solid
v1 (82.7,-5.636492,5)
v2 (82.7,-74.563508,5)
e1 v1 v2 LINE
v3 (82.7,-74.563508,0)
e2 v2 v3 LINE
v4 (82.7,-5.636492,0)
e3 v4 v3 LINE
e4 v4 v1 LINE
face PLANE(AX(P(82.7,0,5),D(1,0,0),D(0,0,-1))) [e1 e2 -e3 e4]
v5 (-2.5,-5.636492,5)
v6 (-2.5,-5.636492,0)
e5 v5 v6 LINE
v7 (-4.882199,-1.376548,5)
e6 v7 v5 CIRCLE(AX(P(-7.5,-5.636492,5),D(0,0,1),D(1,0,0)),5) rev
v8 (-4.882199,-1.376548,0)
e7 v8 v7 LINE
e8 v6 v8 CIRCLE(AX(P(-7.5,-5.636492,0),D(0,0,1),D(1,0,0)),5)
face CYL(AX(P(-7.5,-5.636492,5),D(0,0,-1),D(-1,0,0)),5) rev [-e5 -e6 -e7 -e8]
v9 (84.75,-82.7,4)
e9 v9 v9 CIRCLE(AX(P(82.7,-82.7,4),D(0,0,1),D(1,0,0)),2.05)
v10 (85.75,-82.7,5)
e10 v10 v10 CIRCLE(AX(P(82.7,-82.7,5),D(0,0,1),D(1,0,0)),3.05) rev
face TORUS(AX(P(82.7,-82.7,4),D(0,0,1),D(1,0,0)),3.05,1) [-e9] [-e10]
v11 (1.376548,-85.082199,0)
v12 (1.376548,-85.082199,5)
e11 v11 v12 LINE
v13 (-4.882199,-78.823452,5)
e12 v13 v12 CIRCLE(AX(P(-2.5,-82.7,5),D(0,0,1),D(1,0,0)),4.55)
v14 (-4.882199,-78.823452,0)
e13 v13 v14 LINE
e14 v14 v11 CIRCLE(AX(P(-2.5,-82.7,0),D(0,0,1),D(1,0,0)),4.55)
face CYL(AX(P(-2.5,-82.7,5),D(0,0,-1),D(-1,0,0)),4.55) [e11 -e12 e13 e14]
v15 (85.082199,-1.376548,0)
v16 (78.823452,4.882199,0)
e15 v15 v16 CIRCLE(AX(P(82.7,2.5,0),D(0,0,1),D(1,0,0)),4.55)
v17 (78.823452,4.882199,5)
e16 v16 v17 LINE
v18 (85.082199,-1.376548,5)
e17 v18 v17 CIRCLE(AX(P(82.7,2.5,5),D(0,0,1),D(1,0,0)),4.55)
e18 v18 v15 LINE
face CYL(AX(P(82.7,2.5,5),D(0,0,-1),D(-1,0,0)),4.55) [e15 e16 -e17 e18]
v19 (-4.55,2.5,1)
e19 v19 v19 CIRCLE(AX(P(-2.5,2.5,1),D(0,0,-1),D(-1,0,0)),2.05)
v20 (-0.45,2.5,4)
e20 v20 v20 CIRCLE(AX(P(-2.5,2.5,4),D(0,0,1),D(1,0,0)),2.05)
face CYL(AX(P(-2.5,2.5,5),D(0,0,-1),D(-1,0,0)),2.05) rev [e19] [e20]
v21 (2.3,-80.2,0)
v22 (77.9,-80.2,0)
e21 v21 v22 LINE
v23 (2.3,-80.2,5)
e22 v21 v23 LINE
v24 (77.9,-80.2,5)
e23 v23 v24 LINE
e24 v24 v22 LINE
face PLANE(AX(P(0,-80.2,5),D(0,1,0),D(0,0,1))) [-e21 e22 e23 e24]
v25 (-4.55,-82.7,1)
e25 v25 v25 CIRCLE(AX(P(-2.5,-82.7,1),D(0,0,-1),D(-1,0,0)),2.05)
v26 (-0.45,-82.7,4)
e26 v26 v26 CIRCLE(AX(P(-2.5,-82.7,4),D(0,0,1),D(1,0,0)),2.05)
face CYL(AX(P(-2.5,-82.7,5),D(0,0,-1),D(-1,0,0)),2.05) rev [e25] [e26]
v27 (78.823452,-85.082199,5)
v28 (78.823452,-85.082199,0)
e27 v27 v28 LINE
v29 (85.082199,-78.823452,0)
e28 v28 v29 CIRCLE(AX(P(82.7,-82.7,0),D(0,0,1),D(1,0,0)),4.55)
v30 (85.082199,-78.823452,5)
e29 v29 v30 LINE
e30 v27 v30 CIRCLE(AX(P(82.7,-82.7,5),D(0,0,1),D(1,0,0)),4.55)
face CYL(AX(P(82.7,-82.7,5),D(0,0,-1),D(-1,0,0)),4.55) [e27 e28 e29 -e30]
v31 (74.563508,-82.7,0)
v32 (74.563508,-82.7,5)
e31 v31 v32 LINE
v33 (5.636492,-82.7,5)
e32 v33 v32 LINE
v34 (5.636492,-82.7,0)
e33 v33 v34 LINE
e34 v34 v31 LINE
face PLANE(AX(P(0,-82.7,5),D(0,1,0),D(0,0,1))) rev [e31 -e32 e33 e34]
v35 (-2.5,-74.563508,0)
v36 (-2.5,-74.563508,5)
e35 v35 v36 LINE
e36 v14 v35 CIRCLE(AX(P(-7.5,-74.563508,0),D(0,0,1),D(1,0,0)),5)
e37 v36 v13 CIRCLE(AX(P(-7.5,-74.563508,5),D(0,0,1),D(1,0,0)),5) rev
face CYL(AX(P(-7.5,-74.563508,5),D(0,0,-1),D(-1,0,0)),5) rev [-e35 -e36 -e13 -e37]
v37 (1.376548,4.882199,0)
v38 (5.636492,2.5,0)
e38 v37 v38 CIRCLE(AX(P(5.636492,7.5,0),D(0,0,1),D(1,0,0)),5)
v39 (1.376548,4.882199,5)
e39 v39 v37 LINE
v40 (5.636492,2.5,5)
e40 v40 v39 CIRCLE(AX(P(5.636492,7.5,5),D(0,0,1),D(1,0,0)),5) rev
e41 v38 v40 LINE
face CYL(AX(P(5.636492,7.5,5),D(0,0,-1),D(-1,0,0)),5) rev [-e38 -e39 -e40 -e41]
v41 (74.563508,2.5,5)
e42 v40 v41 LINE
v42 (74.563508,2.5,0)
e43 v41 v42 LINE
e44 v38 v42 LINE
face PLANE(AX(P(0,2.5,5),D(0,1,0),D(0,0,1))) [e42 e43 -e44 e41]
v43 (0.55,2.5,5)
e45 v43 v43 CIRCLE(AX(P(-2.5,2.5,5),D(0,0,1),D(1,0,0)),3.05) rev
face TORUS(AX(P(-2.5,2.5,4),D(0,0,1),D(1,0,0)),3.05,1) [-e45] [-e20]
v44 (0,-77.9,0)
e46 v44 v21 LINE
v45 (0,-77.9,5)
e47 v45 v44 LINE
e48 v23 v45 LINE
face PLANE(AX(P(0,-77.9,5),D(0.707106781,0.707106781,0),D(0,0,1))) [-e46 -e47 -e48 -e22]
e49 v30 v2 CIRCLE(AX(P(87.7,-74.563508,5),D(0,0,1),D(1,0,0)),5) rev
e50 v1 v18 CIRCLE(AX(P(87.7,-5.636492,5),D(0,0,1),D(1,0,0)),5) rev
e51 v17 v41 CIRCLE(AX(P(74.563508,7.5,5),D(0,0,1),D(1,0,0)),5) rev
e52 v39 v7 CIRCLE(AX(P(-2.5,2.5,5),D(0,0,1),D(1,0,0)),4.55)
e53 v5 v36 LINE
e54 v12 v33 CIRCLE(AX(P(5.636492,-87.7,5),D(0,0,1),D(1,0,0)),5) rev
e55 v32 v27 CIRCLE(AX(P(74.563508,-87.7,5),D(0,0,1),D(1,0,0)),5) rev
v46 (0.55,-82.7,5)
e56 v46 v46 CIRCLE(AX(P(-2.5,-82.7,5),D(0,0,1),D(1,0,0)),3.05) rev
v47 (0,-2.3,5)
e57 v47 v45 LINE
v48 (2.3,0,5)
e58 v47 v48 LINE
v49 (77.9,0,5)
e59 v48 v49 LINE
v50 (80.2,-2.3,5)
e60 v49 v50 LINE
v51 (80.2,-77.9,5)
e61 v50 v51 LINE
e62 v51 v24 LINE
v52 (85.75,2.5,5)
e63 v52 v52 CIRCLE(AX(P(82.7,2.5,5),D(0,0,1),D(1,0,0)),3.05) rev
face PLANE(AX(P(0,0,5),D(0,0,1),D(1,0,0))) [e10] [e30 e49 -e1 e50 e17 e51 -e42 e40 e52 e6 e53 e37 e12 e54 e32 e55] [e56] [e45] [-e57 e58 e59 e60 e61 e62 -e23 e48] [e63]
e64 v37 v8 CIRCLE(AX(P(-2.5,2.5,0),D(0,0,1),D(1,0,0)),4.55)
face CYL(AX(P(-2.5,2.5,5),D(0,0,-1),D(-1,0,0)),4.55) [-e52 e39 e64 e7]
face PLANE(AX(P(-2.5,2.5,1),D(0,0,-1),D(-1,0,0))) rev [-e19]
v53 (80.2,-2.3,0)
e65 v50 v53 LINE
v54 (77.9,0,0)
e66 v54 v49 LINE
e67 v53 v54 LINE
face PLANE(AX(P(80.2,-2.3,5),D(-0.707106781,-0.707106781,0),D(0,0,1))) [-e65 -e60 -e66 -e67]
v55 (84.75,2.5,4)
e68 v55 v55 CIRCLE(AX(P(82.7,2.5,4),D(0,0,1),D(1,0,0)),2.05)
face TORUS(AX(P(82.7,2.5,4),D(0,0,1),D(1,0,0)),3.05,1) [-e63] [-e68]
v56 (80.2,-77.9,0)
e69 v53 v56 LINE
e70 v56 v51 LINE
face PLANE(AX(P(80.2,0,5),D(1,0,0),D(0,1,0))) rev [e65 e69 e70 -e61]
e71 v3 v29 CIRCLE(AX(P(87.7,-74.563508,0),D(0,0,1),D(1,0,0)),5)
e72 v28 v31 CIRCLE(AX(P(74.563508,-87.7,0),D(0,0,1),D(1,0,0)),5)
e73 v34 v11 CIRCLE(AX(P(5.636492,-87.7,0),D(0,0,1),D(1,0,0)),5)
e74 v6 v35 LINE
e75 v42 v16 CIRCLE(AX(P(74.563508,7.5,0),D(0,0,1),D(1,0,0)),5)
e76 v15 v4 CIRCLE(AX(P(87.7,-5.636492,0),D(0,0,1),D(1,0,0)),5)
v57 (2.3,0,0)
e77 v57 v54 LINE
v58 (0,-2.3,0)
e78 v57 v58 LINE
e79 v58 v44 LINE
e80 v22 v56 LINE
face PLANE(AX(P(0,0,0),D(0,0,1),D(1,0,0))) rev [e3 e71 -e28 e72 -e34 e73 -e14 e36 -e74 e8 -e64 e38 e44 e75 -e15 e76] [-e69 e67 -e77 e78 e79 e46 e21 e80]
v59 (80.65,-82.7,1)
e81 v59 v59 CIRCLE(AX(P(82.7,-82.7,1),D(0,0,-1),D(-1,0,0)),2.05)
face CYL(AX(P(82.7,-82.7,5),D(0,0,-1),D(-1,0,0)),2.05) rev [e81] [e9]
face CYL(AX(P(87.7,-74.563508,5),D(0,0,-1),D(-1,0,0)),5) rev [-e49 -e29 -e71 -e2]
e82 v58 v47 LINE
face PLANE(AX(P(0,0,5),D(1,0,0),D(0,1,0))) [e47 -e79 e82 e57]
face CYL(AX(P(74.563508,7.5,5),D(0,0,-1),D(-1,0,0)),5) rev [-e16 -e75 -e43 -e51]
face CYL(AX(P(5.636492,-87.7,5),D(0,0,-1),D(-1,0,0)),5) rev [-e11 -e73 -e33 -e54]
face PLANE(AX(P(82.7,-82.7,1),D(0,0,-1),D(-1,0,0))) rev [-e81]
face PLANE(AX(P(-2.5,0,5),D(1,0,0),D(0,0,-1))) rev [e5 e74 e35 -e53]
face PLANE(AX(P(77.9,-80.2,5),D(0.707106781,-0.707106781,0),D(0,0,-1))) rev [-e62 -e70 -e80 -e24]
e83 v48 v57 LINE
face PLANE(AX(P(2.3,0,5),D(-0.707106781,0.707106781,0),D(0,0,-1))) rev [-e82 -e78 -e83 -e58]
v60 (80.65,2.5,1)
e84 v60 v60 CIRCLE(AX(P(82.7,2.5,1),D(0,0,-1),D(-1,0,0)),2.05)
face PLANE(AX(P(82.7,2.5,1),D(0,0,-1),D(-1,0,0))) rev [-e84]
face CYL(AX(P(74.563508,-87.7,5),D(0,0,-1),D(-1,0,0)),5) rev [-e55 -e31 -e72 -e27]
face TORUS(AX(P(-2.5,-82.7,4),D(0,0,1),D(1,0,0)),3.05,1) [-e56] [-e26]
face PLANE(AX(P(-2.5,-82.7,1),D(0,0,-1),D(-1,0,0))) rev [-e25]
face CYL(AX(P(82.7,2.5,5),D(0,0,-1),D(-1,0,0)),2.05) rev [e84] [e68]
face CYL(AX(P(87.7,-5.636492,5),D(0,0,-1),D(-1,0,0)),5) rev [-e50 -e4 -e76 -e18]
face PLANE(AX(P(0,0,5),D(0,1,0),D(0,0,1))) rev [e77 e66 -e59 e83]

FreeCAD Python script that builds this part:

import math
import FreeCAD as App
import Part
import Sketcher

V = App.Vector


def edges_at(feature, points):
    """Names of the edges that pass closest to the given points."""
    edges = feature.Shape.Edges
    near = lambda p: min(range(len(edges)), key=lambda i: edges[i].distToShape(Part.Vertex(*p))[0])
    return sorted({f"Edge{near(p) + 1}" for p in points})

doc = App.newDocument("Part")
body = doc.addObject("PartDesign::Body", "Body")

# Sketch on XY plane
sketch1 = body.newObject("Sketcher::SketchObject", "Sketch")
sketch1.AttachmentSupport = (doc.getObject("XY_Plane"), [""])
sketch1.MapMode = "FlatFace"
sketch1.addGeometry(Part.ArcOfCircle(Part.Circle(V(82.7, 2.5, 0), V(0, 0, 1), 4.5), math.radians(-90), math.radians(180)), False)
sketch1.addGeometry(Part.LineSegment(V(78.2, 2.5, 0), V(2, 2.5, 0)), False)
sketch1.addGeometry(Part.ArcOfCircle(Part.Circle(V(-2.5, 2.5, 0), V(0, 0, 1), 4.5), math.radians(0), math.radians(270)), False)
sketch1.addGeometry(Part.LineSegment(V(-2.5, -2, 0), V(-2.5, -78.2, 0)), False)
sketch1.addGeometry(Part.ArcOfCircle(Part.Circle(V(-2.5, -82.7, 0), V(0, 0, 1), 4.5), math.radians(90), math.radians(360)), False)
sketch1.addGeometry(Part.LineSegment(V(2, -82.7, 0), V(78.2, -82.7, 0)), False)
sketch1.addGeometry(Part.ArcOfCircle(Part.Circle(V(82.7, -82.7, 0), V(0, 0, 1), 4.5), math.radians(180), math.radians(450)), False)
sketch1.addGeometry(Part.LineSegment(V(82.7, -78.2, 0), V(82.7, -2, 0)), False)
sketch1.addGeometry(Part.Circle(V(-2.5, -82.7, 0), V(0, 0, 1), 2), False)
sketch1.addGeometry(Part.LineSegment(V(80.2, -80.2, 0), V(0, -80.2, 0)), False)
sketch1.addGeometry(Part.LineSegment(V(0, -80.2, 0), V(0, 0, 0)), False)
sketch1.addGeometry(Part.LineSegment(V(0, 0, 0), V(80.2, 0, 0)), False)
sketch1.addGeometry(Part.LineSegment(V(80.2, 0, 0), V(80.2, -80.2, 0)), False)
sketch1.addGeometry(Part.Circle(V(82.7, -82.7, 0), V(0, 0, 1), 2), False)
sketch1.addGeometry(Part.Circle(V(-2.5, 2.5, 0), V(0, 0, 1), 2), False)
sketch1.addGeometry(Part.Circle(V(82.7, 2.5, 0), V(0, 0, 1), 2), False)
sketch1.addConstraint(Sketcher.Constraint("Coincident", 0, 2, 1, 1))
sketch1.addConstraint(Sketcher.Constraint("Coincident", 1, 2, 2, 1))
sketch1.addConstraint(Sketcher.Constraint("Coincident", 2, 2, 3, 1))
sketch1.addConstraint(Sketcher.Constraint("Coincident", 3, 2, 4, 1))
sketch1.addConstraint(Sketcher.Constraint("Coincident", 4, 2, 5, 1))
sketch1.addConstraint(Sketcher.Constraint("Coincident", 5, 2, 6, 1))
sketch1.addConstraint(Sketcher.Constraint("Coincident", 6, 2, 7, 1))
sketch1.addConstraint(Sketcher.Constraint("Coincident", 7, 2, 0, 1))
sketch1.addConstraint(Sketcher.Constraint("Coincident", 9, 2, 10, 1))
sketch1.addConstraint(Sketcher.Constraint("Coincident", 10, 2, 11, 1))
sketch1.addConstraint(Sketcher.Constraint("Coincident", 11, 2, 12, 1))
sketch1.addConstraint(Sketcher.Constraint("Coincident", 12, 2, 9, 1))
sketch1.addConstraint(Sketcher.Constraint("Horizontal", 1))
sketch1.addConstraint(Sketcher.Constraint("Vertical", 3))
sketch1.addConstraint(Sketcher.Constraint("Horizontal", 5))
sketch1.addConstraint(Sketcher.Constraint("Vertical", 7))
sketch1.addConstraint(Sketcher.Constraint("Horizontal", 9))
sketch1.addConstraint(Sketcher.Constraint("Vertical", 10))
sketch1.addConstraint(Sketcher.Constraint("Horizontal", 11))
sketch1.addConstraint(Sketcher.Constraint("Vertical", 12))
sketch1.addConstraint(Sketcher.Constraint("Coincident", 10, 2, -1, 1))
sketch1.addConstraint(Sketcher.Constraint("Coincident", 8, 3, 4, 3))
sketch1.addConstraint(Sketcher.Constraint("Coincident", 13, 3, 6, 3))
sketch1.addConstraint(Sketcher.Constraint("Coincident", 14, 3, 2, 3))
sketch1.addConstraint(Sketcher.Constraint("Coincident", 15, 3, 0, 3))
sketch1.addConstraint(Sketcher.Constraint("Equal", 0, 2))
sketch1.addConstraint(Sketcher.Constraint("Equal", 2, 4))
sketch1.addConstraint(Sketcher.Constraint("Equal", 4, 6))
sketch1.addConstraint(Sketcher.Constraint("Equal", 8, 13))
sketch1.addConstraint(Sketcher.Constraint("Equal", 13, 14))
sketch1.addConstraint(Sketcher.Constraint("Equal", 14, 15))
sketch1.addConstraint(Sketcher.Constraint("Horizontal", 0, 3, 2, 3))
sketch1.addConstraint(Sketcher.Constraint("Horizontal", 4, 3, 6, 3))
sketch1.addConstraint(Sketcher.Constraint("Horizontal", 15, 3, 0, 2))
sketch1.addConstraint(Sketcher.Constraint("Horizontal", 13, 3, 4, 2))
sketch1.addConstraint(Sketcher.Constraint("Vertical", 2, 3, 4, 3))
sketch1.addConstraint(Sketcher.Constraint("Vertical", 0, 3, 6, 3))
sketch1.addConstraint(Sketcher.Constraint("Vertical", 14, 3, 2, 2))
sketch1.addConstraint(Sketcher.Constraint("Vertical", 15, 3, 6, 2))
sketch1.addConstraint(Sketcher.Constraint("Equal", 5, 3))
sketch1.addConstraint(Sketcher.Constraint("Equal", 11, 10))
sketch1.addConstraint(Sketcher.Constraint("Diameter", 8, 4.1))
sketch1.addConstraint(Sketcher.Constraint("Radius", 0, 4.55))
sketch1.addConstraint(Sketcher.Constraint("DistanceX", 1, 2, 1, 1, 76.1))
sketch1.addConstraint(Sketcher.Constraint("DistanceX", 9, 2, 9, 1, 80.2))
sketch1.addConstraint(Sketcher.Constraint("DistanceX", -1, 1, 0, 3, 82.7))
sketch1.addConstraint(Sketcher.Constraint("DistanceY", -1, 1, 0, 3, 2.5))
pad1 = body.newObject("PartDesign::Pad", "Pad")
pad1.Profile = sketch1
pad1.Length = 5
doc.recompute()

chamfer = body.newObject("PartDesign::Chamfer", "Chamfer")
chamfer.Base = (pad1, edges_at(pad1, [
    (0, 0, 2.5),
    (0, -80.2, 2.5),
    (80.2, -80.2, 2.5),
    (80.2, 0, 2.5),
]))
chamfer.Size = 2.3
doc.recompute()

fillet = body.newObject("PartDesign::Fillet", "Fillet")
fillet.Base = (chamfer, edges_at(chamfer, [
    (2.05, 2.5, 2.5),
    (78.15, 2.5, 2.5),
    (82.7, -2.05, 2.5),
    (82.7, -78.15, 2.5),
    (78.15, -82.7, 2.5),
    (2.05, -82.7, 2.5),
    (-2.5, -78.15, 2.5),
    (-2.5, -2.05, 2.5),
]))
fillet.Radius = 5
doc.recompute()

fillet2 = body.newObject("PartDesign::Fillet", "Fillet001")
fillet2.Base = (fillet, edges_at(fillet, [
    (80.65, 2.5, 5),
    (80.65, -82.7, 5),
    (-4.55, 2.5, 5),
    (-4.55, -82.7, 5),
]))
fillet2.Radius = 1

# Sketch on XY plane
sketch2 = body.newObject("Sketcher::SketchObject", "Sketch001")
sketch2.AttachmentSupport = (doc.getObject("XY_Plane"), [""])
sketch2.MapMode = "FlatFace"
sketch2.addGeometry(Part.Circle(V(82.7, 2.5, 0), V(0, 0, 1), 4.5), False)
sketch2.addGeometry(Part.Circle(V(-2.5, 2.5, 0), V(0, 0, 1), 4.5), False)
sketch2.addGeometry(Part.Circle(V(-2.5, -82.7, 0), V(0, 0, 1), 4.5), False)
sketch2.addGeometry(Part.Circle(V(82.7, -82.7, 0), V(0, 0, 1), 4.5), False)
sketch2.addConstraint(Sketcher.Constraint("Equal", 0, 1))
sketch2.addConstraint(Sketcher.Constraint("Equal", 1, 2))
sketch2.addConstraint(Sketcher.Constraint("Equal", 2, 3))
sketch2.addConstraint(Sketcher.Constraint("Horizontal", 0, 3, 1, 3))
sketch2.addConstraint(Sketcher.Constraint("Horizontal", 2, 3, 3, 3))
sketch2.addConstraint(Sketcher.Constraint("Vertical", 1, 3, 2, 3))
sketch2.addConstraint(Sketcher.Constraint("Vertical", 0, 3, 3, 3))
sketch2.addConstraint(Sketcher.Constraint("Diameter", 0, 9.1))
sketch2.addConstraint(Sketcher.Constraint("DistanceX", -1, 1, 0, 3, 82.7))
sketch2.addConstraint(Sketcher.Constraint("DistanceY", -1, 1, 0, 3, 2.5))
sketch2.addConstraint(Sketcher.Constraint("DistanceX", 1, 3, -1, 1, 2.5))
sketch2.addConstraint(Sketcher.Constraint("DistanceY", 2, 3, -1, 1, 82.7))
pad2 = body.newObject("PartDesign::Pad", "Pad001")
pad2.Profile = sketch2
pad2.Length = 1

doc.recompute()
